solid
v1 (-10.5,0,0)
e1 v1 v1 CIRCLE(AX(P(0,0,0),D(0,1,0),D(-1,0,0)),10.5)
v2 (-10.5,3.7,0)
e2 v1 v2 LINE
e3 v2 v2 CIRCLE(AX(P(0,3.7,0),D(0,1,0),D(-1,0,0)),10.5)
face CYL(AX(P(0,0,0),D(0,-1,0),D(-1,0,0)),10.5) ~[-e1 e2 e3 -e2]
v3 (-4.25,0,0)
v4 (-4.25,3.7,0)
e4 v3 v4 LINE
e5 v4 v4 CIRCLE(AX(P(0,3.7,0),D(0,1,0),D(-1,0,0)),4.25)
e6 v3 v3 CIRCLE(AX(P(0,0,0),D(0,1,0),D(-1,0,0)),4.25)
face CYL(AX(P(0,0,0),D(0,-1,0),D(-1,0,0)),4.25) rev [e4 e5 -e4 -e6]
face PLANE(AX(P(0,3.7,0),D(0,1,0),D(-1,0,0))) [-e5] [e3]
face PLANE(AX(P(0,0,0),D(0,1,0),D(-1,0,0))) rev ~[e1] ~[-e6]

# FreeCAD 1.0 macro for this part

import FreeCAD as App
import Part
import Sketcher
Q = App.Units.Quantity

doc = App.newDocument("Part")
body = doc.addObject("PartDesign::Body", "Body")

# Sketch on XZ plane
sketch1 = body.newObject("Sketcher::SketchObject", "Sketch")
sketch1.AttachmentSupport = (doc.getObject("XZ_Plane"), [""])
sketch1.MapMode = "FlatFace"
sketch1.addGeometry([
    Part.Circle(App.Vector(0, 0, 0), App.Vector(0, 0, 1), 10.5),
    Part.Circle(App.Vector(0, 0, 0), App.Vector(0, 0, 1), 4.2),
], False)
sketch1.addConstraint([
    Sketcher.Constraint("Coincident", 0, 3, -1, 1),
    Sketcher.Constraint("Coincident", 1, 3, -1, 1),
    Sketcher.Constraint("Diameter", 0, Q("21 mm")),
    Sketcher.Constraint("Diameter", 1, Q("8.5 mm")),
])
pad1 = body.newObject("PartDesign::Pad", "Pad")
pad1.Profile = sketch1
pad1.Length = 3.7
pad1.Reversed = True

doc.recompute()
